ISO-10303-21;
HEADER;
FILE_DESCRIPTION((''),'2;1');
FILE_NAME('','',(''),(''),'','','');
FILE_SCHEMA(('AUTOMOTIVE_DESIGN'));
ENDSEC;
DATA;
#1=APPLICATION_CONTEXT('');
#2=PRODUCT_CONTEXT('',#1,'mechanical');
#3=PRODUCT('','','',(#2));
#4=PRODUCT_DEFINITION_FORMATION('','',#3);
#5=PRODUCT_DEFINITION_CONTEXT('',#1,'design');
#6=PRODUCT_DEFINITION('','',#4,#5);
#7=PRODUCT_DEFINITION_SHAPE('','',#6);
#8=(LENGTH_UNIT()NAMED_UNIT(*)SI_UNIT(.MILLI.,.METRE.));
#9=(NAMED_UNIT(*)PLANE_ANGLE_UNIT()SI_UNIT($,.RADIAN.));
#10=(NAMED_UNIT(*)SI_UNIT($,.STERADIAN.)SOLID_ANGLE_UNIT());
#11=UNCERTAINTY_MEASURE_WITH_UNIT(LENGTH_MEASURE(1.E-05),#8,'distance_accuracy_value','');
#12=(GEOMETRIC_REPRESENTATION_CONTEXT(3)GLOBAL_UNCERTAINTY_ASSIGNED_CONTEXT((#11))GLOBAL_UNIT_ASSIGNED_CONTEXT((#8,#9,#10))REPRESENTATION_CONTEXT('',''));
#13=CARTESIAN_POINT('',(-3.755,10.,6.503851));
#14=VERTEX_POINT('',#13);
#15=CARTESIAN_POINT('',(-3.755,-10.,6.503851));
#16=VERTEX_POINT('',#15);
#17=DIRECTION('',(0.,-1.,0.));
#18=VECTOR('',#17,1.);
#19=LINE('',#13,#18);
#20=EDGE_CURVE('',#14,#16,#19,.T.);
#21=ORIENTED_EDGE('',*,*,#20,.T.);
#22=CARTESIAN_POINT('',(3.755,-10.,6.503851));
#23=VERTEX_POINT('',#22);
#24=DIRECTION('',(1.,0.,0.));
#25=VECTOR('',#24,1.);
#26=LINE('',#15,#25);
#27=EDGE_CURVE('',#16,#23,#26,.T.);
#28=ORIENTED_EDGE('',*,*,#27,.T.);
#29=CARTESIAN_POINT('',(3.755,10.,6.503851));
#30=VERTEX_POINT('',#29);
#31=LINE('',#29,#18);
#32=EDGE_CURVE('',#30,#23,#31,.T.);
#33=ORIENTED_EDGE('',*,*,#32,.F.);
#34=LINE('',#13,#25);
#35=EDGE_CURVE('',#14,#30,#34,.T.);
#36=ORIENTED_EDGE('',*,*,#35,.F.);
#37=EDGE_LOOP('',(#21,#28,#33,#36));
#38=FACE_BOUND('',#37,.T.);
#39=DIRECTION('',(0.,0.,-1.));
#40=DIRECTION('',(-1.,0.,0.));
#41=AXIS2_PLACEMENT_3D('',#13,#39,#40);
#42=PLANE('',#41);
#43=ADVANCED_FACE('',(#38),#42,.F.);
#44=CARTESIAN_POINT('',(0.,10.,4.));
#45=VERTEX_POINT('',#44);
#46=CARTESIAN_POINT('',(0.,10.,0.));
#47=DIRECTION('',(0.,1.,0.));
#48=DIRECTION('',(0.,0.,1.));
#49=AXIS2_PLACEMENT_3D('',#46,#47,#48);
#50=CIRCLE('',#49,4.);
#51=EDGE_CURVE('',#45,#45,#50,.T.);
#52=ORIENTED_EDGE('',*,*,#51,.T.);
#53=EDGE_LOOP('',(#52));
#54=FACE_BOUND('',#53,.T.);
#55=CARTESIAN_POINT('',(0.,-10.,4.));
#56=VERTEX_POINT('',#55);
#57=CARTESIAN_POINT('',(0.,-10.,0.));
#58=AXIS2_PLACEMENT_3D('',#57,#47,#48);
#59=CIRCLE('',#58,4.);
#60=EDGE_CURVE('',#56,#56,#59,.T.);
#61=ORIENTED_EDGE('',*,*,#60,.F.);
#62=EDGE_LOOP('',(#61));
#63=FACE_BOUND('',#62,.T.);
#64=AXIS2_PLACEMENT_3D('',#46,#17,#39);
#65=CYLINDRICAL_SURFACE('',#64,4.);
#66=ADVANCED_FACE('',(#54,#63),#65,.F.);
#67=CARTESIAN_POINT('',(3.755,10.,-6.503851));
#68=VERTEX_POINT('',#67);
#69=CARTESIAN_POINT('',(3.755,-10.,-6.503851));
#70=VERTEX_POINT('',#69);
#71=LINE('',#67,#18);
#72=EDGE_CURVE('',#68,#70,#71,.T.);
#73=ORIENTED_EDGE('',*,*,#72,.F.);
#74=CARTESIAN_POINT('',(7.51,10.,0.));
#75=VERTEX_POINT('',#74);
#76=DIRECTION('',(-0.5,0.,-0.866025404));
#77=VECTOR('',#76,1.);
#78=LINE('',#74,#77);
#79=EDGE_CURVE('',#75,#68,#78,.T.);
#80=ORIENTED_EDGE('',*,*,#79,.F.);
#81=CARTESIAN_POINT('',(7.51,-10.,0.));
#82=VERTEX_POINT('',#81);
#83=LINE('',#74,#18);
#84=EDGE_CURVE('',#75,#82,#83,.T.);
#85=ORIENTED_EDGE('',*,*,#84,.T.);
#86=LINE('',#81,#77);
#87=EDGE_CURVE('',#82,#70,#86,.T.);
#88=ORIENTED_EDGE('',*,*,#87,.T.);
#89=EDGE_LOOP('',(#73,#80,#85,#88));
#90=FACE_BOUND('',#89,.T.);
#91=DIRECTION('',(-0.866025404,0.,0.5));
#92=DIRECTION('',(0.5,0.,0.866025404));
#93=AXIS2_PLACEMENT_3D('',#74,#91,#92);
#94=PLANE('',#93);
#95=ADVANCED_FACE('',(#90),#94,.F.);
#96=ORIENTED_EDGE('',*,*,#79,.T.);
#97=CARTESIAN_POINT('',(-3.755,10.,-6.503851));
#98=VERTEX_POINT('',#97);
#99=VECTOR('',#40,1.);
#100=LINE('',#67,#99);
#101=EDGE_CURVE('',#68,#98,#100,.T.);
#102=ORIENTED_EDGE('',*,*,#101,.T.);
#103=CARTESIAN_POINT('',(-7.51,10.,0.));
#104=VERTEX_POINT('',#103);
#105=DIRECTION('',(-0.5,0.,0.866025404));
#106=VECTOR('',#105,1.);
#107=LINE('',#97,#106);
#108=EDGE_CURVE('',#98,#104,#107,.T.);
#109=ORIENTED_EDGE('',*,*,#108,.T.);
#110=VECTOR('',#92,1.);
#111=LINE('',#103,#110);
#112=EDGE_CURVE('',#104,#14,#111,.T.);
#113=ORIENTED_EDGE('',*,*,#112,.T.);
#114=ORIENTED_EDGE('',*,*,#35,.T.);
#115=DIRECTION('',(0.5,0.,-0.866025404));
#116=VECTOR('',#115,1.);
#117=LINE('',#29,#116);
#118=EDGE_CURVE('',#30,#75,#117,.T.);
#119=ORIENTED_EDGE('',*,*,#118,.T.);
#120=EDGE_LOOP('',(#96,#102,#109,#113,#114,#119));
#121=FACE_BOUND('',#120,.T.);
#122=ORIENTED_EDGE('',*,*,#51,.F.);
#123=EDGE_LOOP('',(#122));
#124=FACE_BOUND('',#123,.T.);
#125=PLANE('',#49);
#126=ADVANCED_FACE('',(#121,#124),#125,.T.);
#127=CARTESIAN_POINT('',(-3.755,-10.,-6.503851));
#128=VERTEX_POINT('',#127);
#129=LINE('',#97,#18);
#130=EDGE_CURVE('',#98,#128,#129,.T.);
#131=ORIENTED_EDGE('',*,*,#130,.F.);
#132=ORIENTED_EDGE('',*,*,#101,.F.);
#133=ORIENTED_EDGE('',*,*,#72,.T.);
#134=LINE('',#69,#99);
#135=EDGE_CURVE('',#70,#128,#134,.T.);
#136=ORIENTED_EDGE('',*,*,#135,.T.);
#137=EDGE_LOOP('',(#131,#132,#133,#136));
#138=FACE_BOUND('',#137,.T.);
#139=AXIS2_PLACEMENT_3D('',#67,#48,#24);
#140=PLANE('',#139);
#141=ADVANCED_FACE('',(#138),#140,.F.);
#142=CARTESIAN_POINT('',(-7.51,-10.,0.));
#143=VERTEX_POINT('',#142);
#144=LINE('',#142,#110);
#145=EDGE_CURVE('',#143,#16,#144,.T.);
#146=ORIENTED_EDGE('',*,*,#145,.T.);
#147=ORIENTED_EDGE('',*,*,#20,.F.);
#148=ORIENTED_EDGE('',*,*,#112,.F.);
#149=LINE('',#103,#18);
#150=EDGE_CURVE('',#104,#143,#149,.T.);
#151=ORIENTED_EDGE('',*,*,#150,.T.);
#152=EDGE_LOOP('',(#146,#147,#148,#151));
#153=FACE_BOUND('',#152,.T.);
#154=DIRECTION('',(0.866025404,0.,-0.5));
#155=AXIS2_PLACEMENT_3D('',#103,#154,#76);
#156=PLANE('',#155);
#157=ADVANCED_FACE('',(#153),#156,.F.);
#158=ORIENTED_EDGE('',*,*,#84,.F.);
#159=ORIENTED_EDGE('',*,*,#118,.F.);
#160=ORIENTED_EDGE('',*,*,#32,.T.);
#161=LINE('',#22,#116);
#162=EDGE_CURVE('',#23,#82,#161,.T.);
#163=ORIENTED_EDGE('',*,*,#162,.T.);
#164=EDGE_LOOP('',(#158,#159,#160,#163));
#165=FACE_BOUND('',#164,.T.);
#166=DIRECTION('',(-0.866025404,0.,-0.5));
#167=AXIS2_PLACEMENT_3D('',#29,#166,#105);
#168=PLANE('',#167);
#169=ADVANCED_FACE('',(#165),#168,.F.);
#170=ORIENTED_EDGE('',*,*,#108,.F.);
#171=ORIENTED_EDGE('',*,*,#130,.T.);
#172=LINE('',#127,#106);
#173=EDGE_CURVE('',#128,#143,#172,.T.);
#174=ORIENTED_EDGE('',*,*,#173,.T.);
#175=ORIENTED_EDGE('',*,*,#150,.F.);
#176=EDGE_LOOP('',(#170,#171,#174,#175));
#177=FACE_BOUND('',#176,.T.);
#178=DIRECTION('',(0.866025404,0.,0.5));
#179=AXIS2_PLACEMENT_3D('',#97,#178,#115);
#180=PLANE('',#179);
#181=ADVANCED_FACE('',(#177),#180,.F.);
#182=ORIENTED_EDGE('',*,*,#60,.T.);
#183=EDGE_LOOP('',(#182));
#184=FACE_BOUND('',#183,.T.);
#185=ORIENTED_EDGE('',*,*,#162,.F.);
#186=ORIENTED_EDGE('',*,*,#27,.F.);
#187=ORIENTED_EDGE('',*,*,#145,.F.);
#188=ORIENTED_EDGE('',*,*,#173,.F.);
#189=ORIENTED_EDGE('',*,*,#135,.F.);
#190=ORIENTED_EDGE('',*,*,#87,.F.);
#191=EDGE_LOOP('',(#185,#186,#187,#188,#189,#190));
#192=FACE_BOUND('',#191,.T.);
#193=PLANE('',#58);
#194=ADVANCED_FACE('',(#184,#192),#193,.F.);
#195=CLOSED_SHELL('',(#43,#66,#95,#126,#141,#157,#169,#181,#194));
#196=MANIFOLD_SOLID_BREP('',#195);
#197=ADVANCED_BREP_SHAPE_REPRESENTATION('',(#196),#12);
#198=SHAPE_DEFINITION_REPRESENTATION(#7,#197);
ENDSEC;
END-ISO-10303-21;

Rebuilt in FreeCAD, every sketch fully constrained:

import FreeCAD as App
import Part
import Sketcher

V = App.Vector
Q = App.Units.Quantity


def add_polygon(sketch, points):
    """Adds a closed chain of lines whose ends are joined by coincident constraints."""
    first, n = sketch.GeometryCount, len(points)
    for a, b in zip(points, points[1:] + points[:1]):
        sketch.addGeometry(Part.LineSegment(App.Vector(*a, 0), App.Vector(*b, 0)), False)
    for i in range(n):
        sketch.addConstraint(Sketcher.Constraint("Coincident", first + i, 2, first + (i + 1) % n, 1))

doc = App.newDocument("Part")
body = doc.addObject("PartDesign::Body", "Body")

sketch1 = body.newObject("Sketcher::SketchObject", "Sketch")
sketch1.AttachmentSupport = (doc.getObject("XZ_Plane"), [""])
sketch1.MapMode = "FlatFace"
add_polygon(sketch1, [(3.755, -6.503851), (-3.755, -6.503851), (-7.51, 0), (-3.755, 6.503851), (3.755, 6.503851), (7.51, 0)])
sketch1.addGeometry(Part.Circle(V(0, 0, 0), V(0, 0, 1), 4), False)
sketch1.addConstraint([
    Sketcher.Constraint("Horizontal", 0),
    Sketcher.Constraint("Horizontal", 3),
    Sketcher.Constraint("Coincident", 6, 3, -1, 1),
    Sketcher.Constraint("Symmetric", 0, 2, 3, 2, -1, 1),
    Sketcher.Constraint("Symmetric", 1, 2, 4, 2, -1, 1),
    Sketcher.Constraint("PointOnObject", 1, 2, -1),
    Sketcher.Constraint("Parallel", 2, 5),
    Sketcher.Constraint("Vertical", 0, 2, 2, 2),
    Sketcher.Constraint("Diameter", 6, 8.0),
    Sketcher.Constraint("Angle", 1, Q("120 deg")),
    Sketcher.Constraint("DistanceX", 0, 2, 0, 1, 7.51),
    Sketcher.Constraint("Distance", 1, 7.51),
])
pad1 = body.newObject("PartDesign::Pad", "Pad")
pad1.Profile = sketch1
pad1.Length = 20
pad1.Midplane = True

doc.recompute()
